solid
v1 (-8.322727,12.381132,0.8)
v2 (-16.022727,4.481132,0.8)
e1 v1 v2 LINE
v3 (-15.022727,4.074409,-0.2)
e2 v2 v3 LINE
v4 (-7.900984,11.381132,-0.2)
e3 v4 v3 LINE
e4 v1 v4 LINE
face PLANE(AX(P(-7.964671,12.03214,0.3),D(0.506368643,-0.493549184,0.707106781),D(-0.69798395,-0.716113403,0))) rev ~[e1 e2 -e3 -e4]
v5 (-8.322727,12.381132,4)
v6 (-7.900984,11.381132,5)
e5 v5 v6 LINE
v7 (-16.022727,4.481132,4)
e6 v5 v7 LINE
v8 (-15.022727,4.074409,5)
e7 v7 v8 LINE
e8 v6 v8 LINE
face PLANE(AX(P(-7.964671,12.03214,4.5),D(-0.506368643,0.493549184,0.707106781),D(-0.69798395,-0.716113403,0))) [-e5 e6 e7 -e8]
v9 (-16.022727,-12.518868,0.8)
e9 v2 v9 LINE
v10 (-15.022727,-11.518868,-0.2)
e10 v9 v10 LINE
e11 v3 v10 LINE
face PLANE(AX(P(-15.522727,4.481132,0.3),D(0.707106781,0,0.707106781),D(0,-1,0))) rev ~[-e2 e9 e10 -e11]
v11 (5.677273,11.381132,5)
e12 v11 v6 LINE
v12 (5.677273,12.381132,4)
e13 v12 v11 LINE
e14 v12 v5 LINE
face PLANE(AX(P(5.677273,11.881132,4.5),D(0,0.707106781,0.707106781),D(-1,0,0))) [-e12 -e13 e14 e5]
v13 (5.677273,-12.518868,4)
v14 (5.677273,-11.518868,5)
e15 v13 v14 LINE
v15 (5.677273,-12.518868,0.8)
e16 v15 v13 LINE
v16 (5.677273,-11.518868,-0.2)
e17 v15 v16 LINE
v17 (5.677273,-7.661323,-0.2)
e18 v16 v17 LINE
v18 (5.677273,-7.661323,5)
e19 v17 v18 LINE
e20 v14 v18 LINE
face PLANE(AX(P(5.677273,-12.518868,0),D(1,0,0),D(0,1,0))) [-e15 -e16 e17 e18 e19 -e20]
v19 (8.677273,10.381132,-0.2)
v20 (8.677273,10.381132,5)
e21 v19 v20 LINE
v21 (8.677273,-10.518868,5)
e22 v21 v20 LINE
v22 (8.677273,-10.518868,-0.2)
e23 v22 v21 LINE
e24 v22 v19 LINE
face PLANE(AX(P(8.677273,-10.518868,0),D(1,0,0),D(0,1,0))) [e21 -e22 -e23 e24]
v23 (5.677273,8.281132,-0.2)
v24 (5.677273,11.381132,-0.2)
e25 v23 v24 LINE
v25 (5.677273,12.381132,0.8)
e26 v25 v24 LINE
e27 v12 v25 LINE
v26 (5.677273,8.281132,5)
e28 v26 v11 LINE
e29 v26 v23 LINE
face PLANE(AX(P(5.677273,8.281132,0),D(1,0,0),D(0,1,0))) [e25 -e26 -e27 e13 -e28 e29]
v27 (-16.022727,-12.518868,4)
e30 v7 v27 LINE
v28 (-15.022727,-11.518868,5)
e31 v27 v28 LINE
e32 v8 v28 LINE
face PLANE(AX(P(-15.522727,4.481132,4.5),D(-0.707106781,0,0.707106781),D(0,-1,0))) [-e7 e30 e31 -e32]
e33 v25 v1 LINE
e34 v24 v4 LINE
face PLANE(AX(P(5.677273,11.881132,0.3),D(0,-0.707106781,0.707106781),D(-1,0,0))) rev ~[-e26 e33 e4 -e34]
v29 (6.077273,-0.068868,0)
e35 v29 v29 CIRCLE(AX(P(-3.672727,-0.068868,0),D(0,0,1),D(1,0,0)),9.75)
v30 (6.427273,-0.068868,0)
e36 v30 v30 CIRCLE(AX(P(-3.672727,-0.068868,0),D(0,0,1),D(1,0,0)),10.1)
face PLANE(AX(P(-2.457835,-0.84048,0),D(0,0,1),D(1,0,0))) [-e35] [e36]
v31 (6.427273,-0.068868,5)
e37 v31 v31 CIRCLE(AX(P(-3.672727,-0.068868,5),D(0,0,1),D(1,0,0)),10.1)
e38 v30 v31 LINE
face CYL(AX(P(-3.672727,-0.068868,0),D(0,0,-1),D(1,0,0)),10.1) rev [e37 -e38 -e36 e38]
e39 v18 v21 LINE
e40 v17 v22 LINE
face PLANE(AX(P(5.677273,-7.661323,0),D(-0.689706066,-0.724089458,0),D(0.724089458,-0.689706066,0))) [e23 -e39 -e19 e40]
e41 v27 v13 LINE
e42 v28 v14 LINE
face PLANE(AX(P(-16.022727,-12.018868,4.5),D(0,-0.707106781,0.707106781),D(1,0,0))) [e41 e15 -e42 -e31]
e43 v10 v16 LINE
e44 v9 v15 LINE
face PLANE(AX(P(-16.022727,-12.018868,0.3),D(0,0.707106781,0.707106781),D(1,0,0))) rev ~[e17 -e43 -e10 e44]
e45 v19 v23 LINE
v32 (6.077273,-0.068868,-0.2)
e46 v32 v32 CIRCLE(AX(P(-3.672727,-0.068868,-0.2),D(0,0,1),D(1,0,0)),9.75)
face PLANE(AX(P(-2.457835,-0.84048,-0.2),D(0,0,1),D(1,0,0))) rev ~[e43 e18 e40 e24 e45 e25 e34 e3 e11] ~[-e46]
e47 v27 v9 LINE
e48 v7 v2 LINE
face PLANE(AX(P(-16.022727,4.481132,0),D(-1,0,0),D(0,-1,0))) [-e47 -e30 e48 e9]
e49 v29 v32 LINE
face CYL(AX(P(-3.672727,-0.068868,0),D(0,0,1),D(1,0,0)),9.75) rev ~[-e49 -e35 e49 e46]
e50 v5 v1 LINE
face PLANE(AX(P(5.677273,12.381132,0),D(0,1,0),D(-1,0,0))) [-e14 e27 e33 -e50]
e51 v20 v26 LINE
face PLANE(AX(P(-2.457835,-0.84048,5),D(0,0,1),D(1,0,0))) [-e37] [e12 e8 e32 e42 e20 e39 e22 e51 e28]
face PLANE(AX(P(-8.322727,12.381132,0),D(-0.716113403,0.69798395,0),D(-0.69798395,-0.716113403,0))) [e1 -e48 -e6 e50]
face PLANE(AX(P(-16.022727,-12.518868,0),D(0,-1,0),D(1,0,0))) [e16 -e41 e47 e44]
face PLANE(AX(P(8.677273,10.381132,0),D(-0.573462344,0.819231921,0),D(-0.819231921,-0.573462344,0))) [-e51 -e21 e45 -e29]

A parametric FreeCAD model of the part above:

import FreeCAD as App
import Part
import Sketcher


def edges_at(feature, points):
    """Names of the edges that pass closest to the given points."""
    edges = feature.Shape.Edges
    near = lambda p: min(range(len(edges)), key=lambda i: edges[i].distToShape(Part.Vertex(*p))[0])
    return sorted({f"Edge{near(p) + 1}" for p in points})

doc = App.newDocument("Part")
body = doc.addObject("PartDesign::Body", "Body")

sketch1 = body.newObject("Sketcher::SketchObject", "Sketch")
sketch1.AttachmentSupport = (doc.getObject("XY_Plane"), [""])
sketch1.MapMode = "FlatFace"
sketch1.addGeometry(Part.LineSegment(App.Vector(-16, -12.5, 0), App.Vector(5.7, -12.5, 0)), False)
sketch1.addGeometry(Part.LineSegment(App.Vector(5.7, -12.5, 0), App.Vector(5.7, -7.7, 0)), False)
sketch1.addGeometry(Part.LineSegment(App.Vector(5.7, -7.7, 0), App.Vector(8.7, -10.5, 0)), False)
sketch1.addGeometry(Part.LineSegment(App.Vector(8.7, -10.5, 0), App.Vector(8.7, 10.4, 0)), False)
sketch1.addGeometry(Part.LineSegment(App.Vector(8.7, 10.4, 0), App.Vector(5.7, 8.3, 0)), False)
sketch1.addGeometry(Part.LineSegment(App.Vector(5.7, 8.3, 0), App.Vector(5.7, 12.4, 0)), False)
sketch1.addGeometry(Part.LineSegment(App.Vector(5.7, 12.4, 0), App.Vector(-8.3, 12.4, 0)), False)
sketch1.addGeometry(Part.LineSegment(App.Vector(-8.3, 12.4, 0), App.Vector(-16, 4.5, 0)), False)
sketch1.addGeometry(Part.LineSegment(App.Vector(-16, 4.5, 0), App.Vector(-16, -12.5, 0)), False)
sketch1.addGeometry(Part.Circle(App.Vector(-3.7, -0.1, 0), App.Vector(0, 0, 1), 10.1), False)
sketch1.addConstraint(Sketcher.Constraint("Coincident", 0, 2, 1, 1))
sketch1.addConstraint(Sketcher.Constraint("Coincident", 1, 2, 2, 1))
sketch1.addConstraint(Sketcher.Constraint("Coincident", 2, 2, 3, 1))
sketch1.addConstraint(Sketcher.Constraint("Coincident", 3, 2, 4, 1))
sketch1.addConstraint(Sketcher.Constraint("Coincident", 4, 2, 5, 1))
sketch1.addConstraint(Sketcher.Constraint("Coincident", 5, 2, 6, 1))
sketch1.addConstraint(Sketcher.Constraint("Coincident", 6, 2, 7, 1))
sketch1.addConstraint(Sketcher.Constraint("Coincident", 7, 2, 8, 1))
sketch1.addConstraint(Sketcher.Constraint("Coincident", 8, 2, 0, 1))
sketch1.addConstraint(Sketcher.Constraint("Horizontal", 0))
sketch1.addConstraint(Sketcher.Constraint("Vertical", 1))
sketch1.addConstraint(Sketcher.Constraint("Vertical", 3))
sketch1.addConstraint(Sketcher.Constraint("Vertical", 5))
sketch1.addConstraint(Sketcher.Constraint("Horizontal", 6))
sketch1.addConstraint(Sketcher.Constraint("Vertical", 8))
sketch1.addConstraint(Sketcher.Constraint("Vertical", 1, 2, 4, 2))
sketch1.addConstraint(Sketcher.Constraint("Diameter", 9, 20.2))
sketch1.addConstraint(Sketcher.Constraint("DistanceX", 6, 2, 6, 1, 14.0))
sketch1.addConstraint(Sketcher.Constraint("DistanceY", 8, 2, 8, 1, 17.0))
sketch1.addConstraint(Sketcher.Constraint("DistanceX", 0, 1, 0, 2, 21.7))
sketch1.addConstraint(Sketcher.Constraint("DistanceY", 3, 1, 3, 2, 20.9))
sketch1.addConstraint(Sketcher.Constraint("DistanceY", 5, 1, 5, 2, 4.1))
sketch1.addConstraint(Sketcher.Constraint("DistanceX", 0, 2, 2, 2, 3.0))
sketch1.addConstraint(Sketcher.Constraint("DistanceY", 0, 2, 2, 2, 2.0))
sketch1.addConstraint(Sketcher.Constraint("DistanceY", 3, 2, 5, 2, 2.0))
sketch1.addConstraint(Sketcher.Constraint("DistanceX", 9, 3, 0, 2, 9.35))
sketch1.addConstraint(Sketcher.Constraint("DistanceY", 0, 2, 9, 3, 12.45))
sketch1.addConstraint(Sketcher.Constraint("DistanceY", 1, 1, 1, 2, 4.857545))
sketch1.addConstraint(Sketcher.Constraint("DistanceX", 9, 3, -1, 1, 3.672727))
sketch1.addConstraint(Sketcher.Constraint("DistanceY", 9, 3, -1, 1, 0.068868))
pad1 = body.newObject("PartDesign::Pad", "Pad")
pad1.Profile = sketch1
pad1.Length = 5

sketch2 = body.newObject("Sketcher::SketchObject", "Sketch001")
sketch2.AttachmentSupport = (doc.getObject("XY_Plane"), [""])
sketch2.MapMode = "FlatFace"
sketch2.addGeometry(Part.LineSegment(App.Vector(-16, -12.5, 0), App.Vector(5.7, -12.5, 0)), False)
sketch2.addGeometry(Part.LineSegment(App.Vector(5.7, -12.5, 0), App.Vector(5.7, -7.7, 0)), False)
sketch2.addGeometry(Part.LineSegment(App.Vector(5.7, -7.7, 0), App.Vector(8.7, -10.5, 0)), False)
sketch2.addGeometry(Part.LineSegment(App.Vector(8.7, -10.5, 0), App.Vector(8.7, 10.4, 0)), False)
sketch2.addGeometry(Part.LineSegment(App.Vector(8.7, 10.4, 0), App.Vector(5.7, 8.3, 0)), False)
sketch2.addGeometry(Part.LineSegment(App.Vector(5.7, 8.3, 0), App.Vector(5.7, 12.4, 0)), False)
sketch2.addGeometry(Part.LineSegment(App.Vector(5.7, 12.4, 0), App.Vector(-8.3, 12.4, 0)), False)
sketch2.addGeometry(Part.LineSegment(App.Vector(-8.3, 12.4, 0), App.Vector(-16, 4.5, 0)), False)
sketch2.addGeometry(Part.LineSegment(App.Vector(-16, 4.5, 0), App.Vector(-16, -12.5, 0)), False)
sketch2.addGeometry(Part.Circle(App.Vector(-3.7, -0.1, 0), App.Vector(0, 0, 1), 9.8), False)
sketch2.addConstraint(Sketcher.Constraint("Coincident", 0, 2, 1, 1))
sketch2.addConstraint(Sketcher.Constraint("Coincident", 1, 2, 2, 1))
sketch2.addConstraint(Sketcher.Constraint("Coincident", 2, 2, 3, 1))
sketch2.addConstraint(Sketcher.Constraint("Coincident", 3, 2, 4, 1))
sketch2.addConstraint(Sketcher.Constraint("Coincident", 4, 2, 5, 1))
sketch2.addConstraint(Sketcher.Constraint("Coincident", 5, 2, 6, 1))
sketch2.addConstraint(Sketcher.Constraint("Coincident", 6, 2, 7, 1))
sketch2.addConstraint(Sketcher.Constraint("Coincident", 7, 2, 8, 1))
sketch2.addConstraint(Sketcher.Constraint("Coincident", 8, 2, 0, 1))
sketch2.addConstraint(Sketcher.Constraint("Horizontal", 0))
sketch2.addConstraint(Sketcher.Constraint("Vertical", 1))
sketch2.addConstraint(Sketcher.Constraint("Vertical", 3))
sketch2.addConstraint(Sketcher.Constraint("Vertical", 5))
sketch2.addConstraint(Sketcher.Constraint("Horizontal", 6))
sketch2.addConstraint(Sketcher.Constraint("Vertical", 8))
sketch2.addConstraint(Sketcher.Constraint("Vertical", 1, 2, 4, 2))
sketch2.addConstraint(Sketcher.Constraint("Diameter", 9, 19.5))
sketch2.addConstraint(Sketcher.Constraint("DistanceX", 6, 2, 6, 1, 14.0))
sketch2.addConstraint(Sketcher.Constraint("DistanceY", 8, 2, 8, 1, 17.0))
sketch2.addConstraint(Sketcher.Constraint("DistanceX", 0, 1, 0, 2, 21.7))
sketch2.addConstraint(Sketcher.Constraint("DistanceY", 3, 1, 3, 2, 20.9))
sketch2.addConstraint(Sketcher.Constraint("DistanceY", 5, 1, 5, 2, 4.1))
sketch2.addConstraint(Sketcher.Constraint("DistanceX", 0, 2, 2, 2, 3.0))
sketch2.addConstraint(Sketcher.Constraint("DistanceY", 0, 2, 2, 2, 2.0))
sketch2.addConstraint(Sketcher.Constraint("DistanceY", 3, 2, 5, 2, 2.0))
sketch2.addConstraint(Sketcher.Constraint("DistanceX", 9, 3, 0, 2, 9.35))
sketch2.addConstraint(Sketcher.Constraint("DistanceY", 0, 2, 9, 3, 12.45))
sketch2.addConstraint(Sketcher.Constraint("DistanceY", 1, 1, 1, 2, 4.857545))
sketch2.addConstraint(Sketcher.Constraint("DistanceX", 9, 3, -1, 1, 3.672727))
sketch2.addConstraint(Sketcher.Constraint("DistanceY", 9, 3, -1, 1, 0.068868))
pad2 = body.newObject("PartDesign::Pad", "Pad001")
pad2.Profile = sketch2
pad2.Length = 0.2
pad2.Reversed = True
doc.recompute()

chamfer = body.newObject("PartDesign::Chamfer", "Chamfer")
chamfer.Base = (pad2, edges_at(pad2, [
    (-5.173, -12.519, 5),
    (-16.023, -4.019, 5),
    (-12.173, 8.431, 5),
    (-1.323, 12.381, 5),
    (-1.323, 12.381, -0.2),
    (-12.173, 8.431, -0.2),
    (-16.023, -4.019, -0.2),
    (-5.173, -12.519, -0.2),
]))
chamfer.Size = 1

doc.recompute()
